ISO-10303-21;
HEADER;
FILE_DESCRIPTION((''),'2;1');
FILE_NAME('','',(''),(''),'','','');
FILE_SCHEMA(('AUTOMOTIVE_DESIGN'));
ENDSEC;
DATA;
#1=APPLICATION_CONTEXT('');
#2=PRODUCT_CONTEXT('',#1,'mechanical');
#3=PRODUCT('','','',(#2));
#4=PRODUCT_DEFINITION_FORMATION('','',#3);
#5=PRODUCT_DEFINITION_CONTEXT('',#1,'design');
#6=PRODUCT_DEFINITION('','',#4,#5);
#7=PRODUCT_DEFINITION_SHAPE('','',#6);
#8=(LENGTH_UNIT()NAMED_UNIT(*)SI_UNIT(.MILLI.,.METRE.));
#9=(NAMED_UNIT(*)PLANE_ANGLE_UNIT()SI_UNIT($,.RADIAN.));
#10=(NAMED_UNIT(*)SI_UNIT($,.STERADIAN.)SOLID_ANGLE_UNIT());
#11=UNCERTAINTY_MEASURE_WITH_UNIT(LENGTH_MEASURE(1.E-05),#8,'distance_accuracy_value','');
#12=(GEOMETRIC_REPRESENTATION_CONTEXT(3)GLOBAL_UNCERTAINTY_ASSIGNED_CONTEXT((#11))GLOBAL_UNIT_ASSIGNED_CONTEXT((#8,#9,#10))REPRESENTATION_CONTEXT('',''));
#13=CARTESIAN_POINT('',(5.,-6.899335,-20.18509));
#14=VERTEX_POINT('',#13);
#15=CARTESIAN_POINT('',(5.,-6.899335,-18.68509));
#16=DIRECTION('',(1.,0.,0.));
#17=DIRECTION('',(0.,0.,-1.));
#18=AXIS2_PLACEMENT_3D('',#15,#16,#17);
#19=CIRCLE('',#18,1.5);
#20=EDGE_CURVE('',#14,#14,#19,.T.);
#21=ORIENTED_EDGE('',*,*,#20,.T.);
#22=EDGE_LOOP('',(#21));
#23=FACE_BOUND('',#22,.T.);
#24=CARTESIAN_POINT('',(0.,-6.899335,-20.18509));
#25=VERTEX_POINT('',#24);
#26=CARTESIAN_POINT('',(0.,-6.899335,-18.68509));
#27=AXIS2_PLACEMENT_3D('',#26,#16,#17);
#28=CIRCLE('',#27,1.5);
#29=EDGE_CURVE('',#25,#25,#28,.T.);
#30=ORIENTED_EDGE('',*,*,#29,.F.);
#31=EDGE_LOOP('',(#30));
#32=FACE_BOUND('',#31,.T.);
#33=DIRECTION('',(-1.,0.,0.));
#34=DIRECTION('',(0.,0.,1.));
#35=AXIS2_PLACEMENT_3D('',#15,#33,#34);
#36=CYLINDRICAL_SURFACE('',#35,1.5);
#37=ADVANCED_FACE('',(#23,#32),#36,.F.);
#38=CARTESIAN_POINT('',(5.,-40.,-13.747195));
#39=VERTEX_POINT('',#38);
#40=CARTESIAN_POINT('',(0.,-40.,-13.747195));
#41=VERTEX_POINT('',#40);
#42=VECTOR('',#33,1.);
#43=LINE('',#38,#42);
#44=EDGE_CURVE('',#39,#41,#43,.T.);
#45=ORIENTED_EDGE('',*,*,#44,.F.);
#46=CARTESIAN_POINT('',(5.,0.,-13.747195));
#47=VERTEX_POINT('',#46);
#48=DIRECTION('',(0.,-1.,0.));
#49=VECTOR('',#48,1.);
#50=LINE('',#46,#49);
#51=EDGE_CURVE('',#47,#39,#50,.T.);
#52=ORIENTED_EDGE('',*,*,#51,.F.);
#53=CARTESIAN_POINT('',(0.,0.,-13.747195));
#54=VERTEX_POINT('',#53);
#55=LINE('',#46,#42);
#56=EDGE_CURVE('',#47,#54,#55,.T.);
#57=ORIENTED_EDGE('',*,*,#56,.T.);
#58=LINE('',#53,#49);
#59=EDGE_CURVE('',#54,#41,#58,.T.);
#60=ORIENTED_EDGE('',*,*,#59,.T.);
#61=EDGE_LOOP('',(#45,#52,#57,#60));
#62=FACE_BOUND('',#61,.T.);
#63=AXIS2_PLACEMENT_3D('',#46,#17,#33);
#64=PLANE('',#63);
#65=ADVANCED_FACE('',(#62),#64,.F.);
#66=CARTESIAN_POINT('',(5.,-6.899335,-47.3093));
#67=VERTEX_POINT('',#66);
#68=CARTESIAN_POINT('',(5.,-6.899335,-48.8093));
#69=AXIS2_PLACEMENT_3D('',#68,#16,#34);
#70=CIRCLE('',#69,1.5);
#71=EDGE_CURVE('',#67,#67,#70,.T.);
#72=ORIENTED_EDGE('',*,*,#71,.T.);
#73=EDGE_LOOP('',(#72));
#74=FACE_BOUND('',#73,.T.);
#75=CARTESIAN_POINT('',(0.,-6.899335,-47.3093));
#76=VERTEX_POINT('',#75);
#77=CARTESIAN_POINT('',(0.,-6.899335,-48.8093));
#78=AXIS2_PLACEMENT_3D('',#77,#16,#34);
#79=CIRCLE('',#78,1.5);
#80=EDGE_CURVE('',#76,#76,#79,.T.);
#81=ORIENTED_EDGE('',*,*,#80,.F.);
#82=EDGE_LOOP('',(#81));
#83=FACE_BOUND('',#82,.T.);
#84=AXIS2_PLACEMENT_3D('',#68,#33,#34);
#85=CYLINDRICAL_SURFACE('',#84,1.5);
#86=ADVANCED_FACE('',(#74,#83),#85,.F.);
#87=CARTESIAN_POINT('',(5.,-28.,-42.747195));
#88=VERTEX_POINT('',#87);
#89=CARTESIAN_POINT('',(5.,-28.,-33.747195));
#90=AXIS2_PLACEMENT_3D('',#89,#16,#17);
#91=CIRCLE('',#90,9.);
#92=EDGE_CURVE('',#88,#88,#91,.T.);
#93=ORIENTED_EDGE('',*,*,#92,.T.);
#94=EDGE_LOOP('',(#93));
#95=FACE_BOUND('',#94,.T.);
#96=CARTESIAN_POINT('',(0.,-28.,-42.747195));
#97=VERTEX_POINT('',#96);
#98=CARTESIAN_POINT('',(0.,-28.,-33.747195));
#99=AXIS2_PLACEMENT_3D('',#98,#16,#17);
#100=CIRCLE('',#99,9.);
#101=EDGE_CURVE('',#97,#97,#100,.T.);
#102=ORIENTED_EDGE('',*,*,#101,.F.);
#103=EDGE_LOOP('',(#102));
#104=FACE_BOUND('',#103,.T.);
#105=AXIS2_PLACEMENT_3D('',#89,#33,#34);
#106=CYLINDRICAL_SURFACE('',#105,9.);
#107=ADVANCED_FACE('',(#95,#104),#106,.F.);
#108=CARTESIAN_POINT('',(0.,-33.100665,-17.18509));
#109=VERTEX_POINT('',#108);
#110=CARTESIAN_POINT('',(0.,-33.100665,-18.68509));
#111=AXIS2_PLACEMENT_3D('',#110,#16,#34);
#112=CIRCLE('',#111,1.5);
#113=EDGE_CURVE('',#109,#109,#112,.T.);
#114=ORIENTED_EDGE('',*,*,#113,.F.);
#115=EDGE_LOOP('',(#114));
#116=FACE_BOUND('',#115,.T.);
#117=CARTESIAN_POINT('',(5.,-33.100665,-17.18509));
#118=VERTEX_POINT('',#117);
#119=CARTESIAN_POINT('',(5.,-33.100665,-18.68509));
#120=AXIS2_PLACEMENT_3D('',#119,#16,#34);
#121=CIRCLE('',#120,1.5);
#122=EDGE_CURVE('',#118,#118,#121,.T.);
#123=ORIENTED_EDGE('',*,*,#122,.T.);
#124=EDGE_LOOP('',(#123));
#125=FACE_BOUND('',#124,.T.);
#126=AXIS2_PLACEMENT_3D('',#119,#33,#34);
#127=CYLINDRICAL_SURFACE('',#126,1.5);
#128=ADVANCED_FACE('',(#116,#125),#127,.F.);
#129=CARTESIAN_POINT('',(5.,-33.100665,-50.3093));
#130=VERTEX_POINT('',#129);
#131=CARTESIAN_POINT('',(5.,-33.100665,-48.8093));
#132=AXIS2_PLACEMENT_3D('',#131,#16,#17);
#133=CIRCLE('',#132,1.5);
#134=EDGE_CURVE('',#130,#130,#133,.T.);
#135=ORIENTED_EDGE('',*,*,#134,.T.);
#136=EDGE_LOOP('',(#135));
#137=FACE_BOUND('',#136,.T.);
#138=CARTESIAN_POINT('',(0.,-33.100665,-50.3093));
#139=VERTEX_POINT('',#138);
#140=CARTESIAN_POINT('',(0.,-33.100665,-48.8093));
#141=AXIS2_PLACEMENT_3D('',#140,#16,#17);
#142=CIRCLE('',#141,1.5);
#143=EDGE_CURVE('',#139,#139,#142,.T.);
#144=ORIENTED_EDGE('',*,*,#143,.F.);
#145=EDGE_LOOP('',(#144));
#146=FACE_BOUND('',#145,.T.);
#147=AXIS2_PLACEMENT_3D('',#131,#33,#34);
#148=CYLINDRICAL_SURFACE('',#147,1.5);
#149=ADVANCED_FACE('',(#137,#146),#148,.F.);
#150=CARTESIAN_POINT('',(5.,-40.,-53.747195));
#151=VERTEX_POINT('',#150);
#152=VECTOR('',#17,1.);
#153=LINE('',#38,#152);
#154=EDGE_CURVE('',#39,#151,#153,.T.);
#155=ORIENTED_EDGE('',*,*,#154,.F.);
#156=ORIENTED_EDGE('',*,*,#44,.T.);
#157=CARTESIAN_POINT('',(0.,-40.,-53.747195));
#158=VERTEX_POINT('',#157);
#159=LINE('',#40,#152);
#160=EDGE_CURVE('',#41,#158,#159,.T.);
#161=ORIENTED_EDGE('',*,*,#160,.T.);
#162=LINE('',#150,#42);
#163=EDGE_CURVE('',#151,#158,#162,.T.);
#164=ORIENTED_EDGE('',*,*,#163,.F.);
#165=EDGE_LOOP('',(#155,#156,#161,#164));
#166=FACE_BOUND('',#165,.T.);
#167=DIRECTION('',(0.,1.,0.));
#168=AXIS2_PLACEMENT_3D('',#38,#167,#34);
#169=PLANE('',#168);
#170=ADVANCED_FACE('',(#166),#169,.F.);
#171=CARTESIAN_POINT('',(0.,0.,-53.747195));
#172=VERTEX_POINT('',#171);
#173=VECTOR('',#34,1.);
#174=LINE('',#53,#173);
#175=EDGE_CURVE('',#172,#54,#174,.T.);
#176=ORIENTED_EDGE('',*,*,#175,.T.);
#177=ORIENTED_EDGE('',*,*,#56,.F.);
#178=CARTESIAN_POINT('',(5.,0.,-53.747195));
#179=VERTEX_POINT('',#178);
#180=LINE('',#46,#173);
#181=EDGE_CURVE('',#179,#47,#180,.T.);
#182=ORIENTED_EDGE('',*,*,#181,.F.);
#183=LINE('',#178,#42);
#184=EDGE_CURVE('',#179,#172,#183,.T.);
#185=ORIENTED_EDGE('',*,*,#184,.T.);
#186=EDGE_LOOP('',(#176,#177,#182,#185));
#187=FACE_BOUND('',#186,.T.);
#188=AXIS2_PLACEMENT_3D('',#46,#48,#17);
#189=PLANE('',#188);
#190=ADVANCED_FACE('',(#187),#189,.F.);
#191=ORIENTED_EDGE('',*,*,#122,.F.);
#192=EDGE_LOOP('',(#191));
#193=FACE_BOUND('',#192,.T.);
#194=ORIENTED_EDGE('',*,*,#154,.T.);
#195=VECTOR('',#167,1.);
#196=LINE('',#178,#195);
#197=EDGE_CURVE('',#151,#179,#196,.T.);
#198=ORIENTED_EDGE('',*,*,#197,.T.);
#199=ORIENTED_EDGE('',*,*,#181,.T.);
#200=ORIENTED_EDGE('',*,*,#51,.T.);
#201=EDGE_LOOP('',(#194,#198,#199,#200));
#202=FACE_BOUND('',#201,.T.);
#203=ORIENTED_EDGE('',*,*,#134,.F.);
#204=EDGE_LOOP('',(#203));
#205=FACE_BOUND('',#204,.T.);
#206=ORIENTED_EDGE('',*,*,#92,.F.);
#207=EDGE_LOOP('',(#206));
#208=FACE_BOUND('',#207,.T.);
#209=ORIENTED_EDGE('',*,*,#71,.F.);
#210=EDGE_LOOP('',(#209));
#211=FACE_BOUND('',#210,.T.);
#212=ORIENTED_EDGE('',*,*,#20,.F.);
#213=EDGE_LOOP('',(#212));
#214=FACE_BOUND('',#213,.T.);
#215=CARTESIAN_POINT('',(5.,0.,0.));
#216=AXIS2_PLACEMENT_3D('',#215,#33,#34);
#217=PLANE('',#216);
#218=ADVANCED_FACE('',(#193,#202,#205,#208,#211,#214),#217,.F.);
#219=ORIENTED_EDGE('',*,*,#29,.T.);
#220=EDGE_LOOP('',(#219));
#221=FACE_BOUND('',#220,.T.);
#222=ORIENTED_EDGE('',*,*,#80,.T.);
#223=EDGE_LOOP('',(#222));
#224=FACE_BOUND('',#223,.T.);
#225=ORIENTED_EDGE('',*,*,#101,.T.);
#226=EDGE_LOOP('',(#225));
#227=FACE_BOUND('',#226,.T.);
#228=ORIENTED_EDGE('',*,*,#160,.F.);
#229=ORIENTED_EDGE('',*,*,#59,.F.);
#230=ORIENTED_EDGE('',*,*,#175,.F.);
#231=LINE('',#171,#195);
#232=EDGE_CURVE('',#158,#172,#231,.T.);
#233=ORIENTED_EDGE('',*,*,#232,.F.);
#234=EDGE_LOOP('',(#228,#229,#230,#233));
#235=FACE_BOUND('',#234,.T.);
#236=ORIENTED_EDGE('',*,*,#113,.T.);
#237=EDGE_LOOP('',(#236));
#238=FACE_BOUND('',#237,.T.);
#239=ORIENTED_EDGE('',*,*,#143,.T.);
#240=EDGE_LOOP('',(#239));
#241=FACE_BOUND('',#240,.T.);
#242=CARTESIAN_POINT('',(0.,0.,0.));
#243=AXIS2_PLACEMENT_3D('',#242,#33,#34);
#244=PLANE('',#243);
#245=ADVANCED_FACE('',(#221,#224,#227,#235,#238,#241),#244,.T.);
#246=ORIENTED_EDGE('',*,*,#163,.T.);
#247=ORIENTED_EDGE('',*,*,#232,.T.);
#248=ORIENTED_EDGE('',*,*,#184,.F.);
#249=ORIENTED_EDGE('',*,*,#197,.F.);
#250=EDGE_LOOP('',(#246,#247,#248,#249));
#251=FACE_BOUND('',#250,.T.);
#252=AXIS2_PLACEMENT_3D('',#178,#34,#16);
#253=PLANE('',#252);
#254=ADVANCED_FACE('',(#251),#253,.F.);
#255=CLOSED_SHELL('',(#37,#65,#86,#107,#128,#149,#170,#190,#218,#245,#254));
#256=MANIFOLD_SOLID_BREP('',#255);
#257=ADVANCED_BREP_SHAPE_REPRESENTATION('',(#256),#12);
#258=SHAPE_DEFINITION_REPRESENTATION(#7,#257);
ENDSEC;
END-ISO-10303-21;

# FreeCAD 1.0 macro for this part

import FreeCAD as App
import Part
import Sketcher

V = App.Vector
Q = App.Units.Quantity

doc = App.newDocument("Part")
body = doc.addObject("PartDesign::Body", "Body")

# Sketch on YZ plane
sketch1 = body.newObject("Sketcher::SketchObject", "Sketch")
sketch1.AttachmentSupport = (doc.getObject("YZ_Plane"), [""])
sketch1.MapMode = "FlatFace"
sketch1.addGeometry([
    Part.LineSegment(V(0, -13.7, 0), V(-40, -13.7, 0)),  # 0
    Part.LineSegment(V(-40, -13.7, 0), V(-40, -53.7, 0)),  # 1
    Part.LineSegment(V(-40, -53.7, 0), V(0, -53.7, 0)),  # 2
    Part.LineSegment(V(0, -53.7, 0), V(0, -13.7, 0)),  # 3
    Part.Circle(V(-33.1, -18.7, 0), V(0, 0, 1), 1.5),  # 4
    Part.Circle(V(-33.1, -48.8, 0), V(0, 0, 1), 1.5),  # 5
    Part.Circle(V(-28, -33.7, 0), V(0, 0, 1), 9),  # 6
    Part.Circle(V(-6.9, -18.7, 0), V(0, 0, 1), 1.5),  # 7
    Part.Circle(V(-6.9, -48.8, 0), V(0, 0, 1), 1.5),  # 8
], False)
sketch1.addConstraint([
    Sketcher.Constraint("Coincident", 0, 2, 1, 1),
    Sketcher.Constraint("Coincident", 1, 2, 2, 1),
    Sketcher.Constraint("Coincident", 2, 2, 3, 1),
    Sketcher.Constraint("Coincident", 3, 2, 0, 1),
    Sketcher.Constraint("Horizontal", 0),
    Sketcher.Constraint("Vertical", 1),
    Sketcher.Constraint("Horizontal", 2),
    Sketcher.Constraint("Vertical", 3),
    Sketcher.Constraint("Equal", 4, 5),
    Sketcher.Constraint("Equal", 5, 7),
    Sketcher.Constraint("Equal", 7, 8),
    Sketcher.Constraint("PointOnObject", 2, 2, -2),
    Sketcher.Constraint("Horizontal", 4, 3, 7, 3),
    Sketcher.Constraint("Horizontal", 5, 3, 8, 3),
    Sketcher.Constraint("Vertical", 4, 3, 5, 3),
    Sketcher.Constraint("Vertical", 7, 3, 8, 3),
    Sketcher.Constraint("Equal", 2, 1),
    Sketcher.Constraint("Diameter", 4, Q("3 mm")),
    Sketcher.Constraint("Diameter", 6, Q("18 mm")),
    Sketcher.Constraint("DistanceX", 0, 2, 0, 1, Q("40 mm")),
    Sketcher.Constraint("DistanceX", 6, 3, -1, 1, Q("28 mm")),
    Sketcher.Constraint("DistanceY", 6, 3, 0, 2, Q("20 mm")),
    Sketcher.Constraint("DistanceY", 5, 3, -1, 1, Q("48.8093 mm")),
    Sketcher.Constraint("DistanceY", 4, 3, -1, 1, Q("18.68509 mm")),
    Sketcher.Constraint("DistanceX", 4, 3, 7, 3, Q("26.201329 mm")),
    Sketcher.Constraint("DistanceX", 4, 3, -1, 1, Q("33.100665 mm")),
    Sketcher.Constraint("DistanceY", 6, 3, -1, 1, Q("33.747195 mm")),
])
pad1 = body.newObject("PartDesign::Pad", "Pad")
pad1.Profile = sketch1
pad1.Length = 5

doc.recompute()
